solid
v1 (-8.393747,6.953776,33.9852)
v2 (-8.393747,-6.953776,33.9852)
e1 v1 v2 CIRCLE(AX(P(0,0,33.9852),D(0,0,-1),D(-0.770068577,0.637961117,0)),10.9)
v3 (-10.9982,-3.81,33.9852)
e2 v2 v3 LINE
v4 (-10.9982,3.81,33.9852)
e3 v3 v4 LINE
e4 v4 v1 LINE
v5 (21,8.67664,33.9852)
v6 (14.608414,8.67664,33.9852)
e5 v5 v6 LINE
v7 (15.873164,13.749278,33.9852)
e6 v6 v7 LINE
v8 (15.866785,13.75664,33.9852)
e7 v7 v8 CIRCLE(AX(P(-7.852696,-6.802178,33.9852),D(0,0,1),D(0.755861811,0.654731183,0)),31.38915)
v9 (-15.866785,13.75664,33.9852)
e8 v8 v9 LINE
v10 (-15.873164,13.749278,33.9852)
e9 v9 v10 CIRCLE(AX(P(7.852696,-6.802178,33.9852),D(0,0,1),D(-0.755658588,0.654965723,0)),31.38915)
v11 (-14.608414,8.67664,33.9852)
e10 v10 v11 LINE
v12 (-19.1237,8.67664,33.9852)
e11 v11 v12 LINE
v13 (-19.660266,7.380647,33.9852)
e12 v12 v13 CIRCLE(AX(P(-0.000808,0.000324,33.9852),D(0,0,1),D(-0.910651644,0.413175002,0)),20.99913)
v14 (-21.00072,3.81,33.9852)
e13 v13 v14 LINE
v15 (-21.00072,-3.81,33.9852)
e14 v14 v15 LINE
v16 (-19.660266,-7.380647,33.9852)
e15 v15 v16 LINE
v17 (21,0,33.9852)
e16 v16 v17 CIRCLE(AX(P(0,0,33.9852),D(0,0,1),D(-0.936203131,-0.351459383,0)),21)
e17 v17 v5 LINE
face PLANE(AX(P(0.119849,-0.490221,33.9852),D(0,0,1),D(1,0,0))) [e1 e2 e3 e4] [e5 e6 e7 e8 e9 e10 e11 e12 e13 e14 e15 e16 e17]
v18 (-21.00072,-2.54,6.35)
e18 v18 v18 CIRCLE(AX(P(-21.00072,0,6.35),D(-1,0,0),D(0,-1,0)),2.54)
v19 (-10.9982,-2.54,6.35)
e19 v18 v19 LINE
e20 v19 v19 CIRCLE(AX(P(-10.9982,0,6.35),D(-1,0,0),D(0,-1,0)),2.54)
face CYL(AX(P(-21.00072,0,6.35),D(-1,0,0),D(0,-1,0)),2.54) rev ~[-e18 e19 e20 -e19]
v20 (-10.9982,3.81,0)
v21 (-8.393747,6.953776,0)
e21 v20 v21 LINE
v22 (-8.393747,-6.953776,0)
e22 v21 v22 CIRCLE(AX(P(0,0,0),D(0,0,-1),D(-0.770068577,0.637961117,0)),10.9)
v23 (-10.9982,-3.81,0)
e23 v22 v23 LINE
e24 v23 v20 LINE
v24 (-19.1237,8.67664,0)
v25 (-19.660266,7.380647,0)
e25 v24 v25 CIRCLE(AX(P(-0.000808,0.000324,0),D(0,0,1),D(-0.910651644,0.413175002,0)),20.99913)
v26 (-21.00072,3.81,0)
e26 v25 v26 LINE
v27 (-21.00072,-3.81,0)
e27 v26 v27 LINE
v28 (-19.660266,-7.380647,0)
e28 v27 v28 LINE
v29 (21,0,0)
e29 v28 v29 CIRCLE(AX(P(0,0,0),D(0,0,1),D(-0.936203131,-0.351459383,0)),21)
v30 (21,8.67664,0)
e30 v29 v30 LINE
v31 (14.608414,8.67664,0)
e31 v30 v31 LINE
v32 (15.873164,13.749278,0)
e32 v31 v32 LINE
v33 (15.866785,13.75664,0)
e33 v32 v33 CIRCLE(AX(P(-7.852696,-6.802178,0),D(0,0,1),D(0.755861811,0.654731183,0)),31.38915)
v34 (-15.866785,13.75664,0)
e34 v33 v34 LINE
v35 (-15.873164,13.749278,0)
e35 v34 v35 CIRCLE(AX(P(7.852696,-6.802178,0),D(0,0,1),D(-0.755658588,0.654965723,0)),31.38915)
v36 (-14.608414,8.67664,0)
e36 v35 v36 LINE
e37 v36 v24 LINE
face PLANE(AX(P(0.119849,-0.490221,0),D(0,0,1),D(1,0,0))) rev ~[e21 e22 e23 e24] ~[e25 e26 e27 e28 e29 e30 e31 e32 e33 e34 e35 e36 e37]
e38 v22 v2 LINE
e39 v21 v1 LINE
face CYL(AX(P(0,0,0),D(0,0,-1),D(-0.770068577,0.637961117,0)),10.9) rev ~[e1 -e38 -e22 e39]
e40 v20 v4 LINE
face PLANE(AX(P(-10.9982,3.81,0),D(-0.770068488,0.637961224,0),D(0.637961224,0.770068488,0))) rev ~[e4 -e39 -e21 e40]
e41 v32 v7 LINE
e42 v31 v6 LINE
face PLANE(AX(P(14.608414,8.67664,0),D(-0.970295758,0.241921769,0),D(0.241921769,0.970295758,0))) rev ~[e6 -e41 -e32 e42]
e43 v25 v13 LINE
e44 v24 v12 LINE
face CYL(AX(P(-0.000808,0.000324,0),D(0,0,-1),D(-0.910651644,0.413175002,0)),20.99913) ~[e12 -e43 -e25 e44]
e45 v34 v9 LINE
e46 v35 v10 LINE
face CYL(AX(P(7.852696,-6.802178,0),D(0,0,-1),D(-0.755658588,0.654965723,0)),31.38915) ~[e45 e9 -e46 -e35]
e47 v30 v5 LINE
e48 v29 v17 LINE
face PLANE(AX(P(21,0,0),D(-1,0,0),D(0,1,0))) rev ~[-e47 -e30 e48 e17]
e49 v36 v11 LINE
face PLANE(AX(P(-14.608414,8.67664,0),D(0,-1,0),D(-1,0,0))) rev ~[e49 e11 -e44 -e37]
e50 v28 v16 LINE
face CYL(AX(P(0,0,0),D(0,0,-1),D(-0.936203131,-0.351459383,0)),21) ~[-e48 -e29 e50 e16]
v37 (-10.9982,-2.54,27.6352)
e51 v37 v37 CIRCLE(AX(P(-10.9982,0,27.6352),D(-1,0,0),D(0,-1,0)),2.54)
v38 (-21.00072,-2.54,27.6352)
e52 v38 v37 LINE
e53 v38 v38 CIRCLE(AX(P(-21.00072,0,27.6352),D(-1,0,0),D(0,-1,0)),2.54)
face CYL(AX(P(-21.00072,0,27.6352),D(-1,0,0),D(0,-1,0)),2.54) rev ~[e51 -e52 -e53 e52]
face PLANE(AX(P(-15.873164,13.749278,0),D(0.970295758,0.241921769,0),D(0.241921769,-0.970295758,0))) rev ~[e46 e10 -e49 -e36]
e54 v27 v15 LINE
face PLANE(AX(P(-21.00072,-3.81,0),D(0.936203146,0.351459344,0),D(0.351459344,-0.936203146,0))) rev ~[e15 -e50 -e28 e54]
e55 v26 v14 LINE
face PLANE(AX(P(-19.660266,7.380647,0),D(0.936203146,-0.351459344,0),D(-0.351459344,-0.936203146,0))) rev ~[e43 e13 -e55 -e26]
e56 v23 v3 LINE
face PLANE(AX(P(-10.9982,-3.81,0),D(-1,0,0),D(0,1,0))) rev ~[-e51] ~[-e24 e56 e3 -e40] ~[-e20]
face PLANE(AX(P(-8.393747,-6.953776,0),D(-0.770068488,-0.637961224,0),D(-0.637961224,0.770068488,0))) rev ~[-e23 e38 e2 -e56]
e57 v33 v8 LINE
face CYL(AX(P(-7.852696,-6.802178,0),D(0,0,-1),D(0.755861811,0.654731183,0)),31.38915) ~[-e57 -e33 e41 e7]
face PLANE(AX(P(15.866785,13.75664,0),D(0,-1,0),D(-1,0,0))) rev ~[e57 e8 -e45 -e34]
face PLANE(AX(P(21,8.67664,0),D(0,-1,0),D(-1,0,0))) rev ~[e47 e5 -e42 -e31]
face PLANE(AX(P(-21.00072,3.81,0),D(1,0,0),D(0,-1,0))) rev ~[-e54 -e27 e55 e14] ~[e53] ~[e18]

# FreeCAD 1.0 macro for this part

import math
import FreeCAD as App
import Part
import Sketcher
Q = App.Units.Quantity

doc = App.newDocument("Part")
params = doc.addObject("Spreadsheet::Sheet", "Params")
for row, (alias, value) in enumerate([
    ("sketch1_height", "0.3 in"),
    ("sketch1_height2", "0.3 in"),
    ("pad1_length", "1.338 in"),
    ("sketch2_diameter", "0.2 in"),
    ("pocket1_length", "0.3938 in"),
], start=1):
    params.set(f"A{row}", alias)
    params.set(f"B{row}", "=" + value)
    params.setAlias(f"B{row}", alias)

body = doc.addObject("PartDesign::Body", "Body")

sketch1 = doc.addObject("Sketcher::SketchObject", "Sketch")
body.addObject(sketch1)
sketch1.AttachmentSupport = (doc.XY_Plane, [""])
sketch1.MapMode = "FlatFace"
sketch1.addGeometry([
    Part.LineSegment(App.Vector(-21.00072, -3.81, 0), App.Vector(-19.660266, -7.380647, 0)),
    Part.ArcOfCircle(Part.Circle(App.Vector(0, 0, 0), App.Vector(0, 0, 1), 21), math.radians(-159.423396), math.radians(0)),
    Part.LineSegment(App.Vector(21, 0, 0), App.Vector(21, 8.67664, 0)),
    Part.LineSegment(App.Vector(21, 8.67664, 0), App.Vector(14.608414, 8.67664, 0)),
    Part.LineSegment(App.Vector(14.608414, 8.67664, 0), App.Vector(15.873164, 13.749278, 0)),
    Part.ArcOfCircle(Part.Circle(App.Vector(-7.852696, -6.802178, 0), App.Vector(0, 0, 1), 31.38915), math.radians(40.89927), math.radians(40.917051)),
    Part.LineSegment(App.Vector(15.866785, 13.75664, 0), App.Vector(-15.866785, 13.75664, 0)),
    Part.ArcOfCircle(Part.Circle(App.Vector(7.852696, -6.802178, 0), App.Vector(0, 0, 1), 31.38915), math.radians(139.082949), math.radians(139.10073)),
    Part.LineSegment(App.Vector(-15.873164, 13.749278, 0), App.Vector(-14.608414, 8.67664, 0)),
    Part.LineSegment(App.Vector(-14.608414, 8.67664, 0), App.Vector(-19.1237, 8.67664, 0)),
    Part.ArcOfCircle(Part.Circle(App.Vector(-0.000808, 0.000324, 0), App.Vector(0, 0, 1), 20.99913), math.radians(155.59556), math.radians(159.423451)),
    Part.LineSegment(App.Vector(-19.660266, 7.380647, 0), App.Vector(-21.00072, 3.81, 0)),
    Part.LineSegment(App.Vector(-21.00072, 3.81, 0), App.Vector(-21.00072, -3.81, 0)),
    Part.LineSegment(App.Vector(-10.9982, 3.81, 0), App.Vector(-8.393747, 6.953776, 0)),
    Part.ArcOfCircle(Part.Circle(App.Vector(0, 0, 0), App.Vector(0, 0, 1), 10.9), math.radians(-140.360047), math.radians(140.360047)),
    Part.LineSegment(App.Vector(-8.393747, -6.953776, 0), App.Vector(-10.9982, -3.81, 0)),
    Part.LineSegment(App.Vector(-10.9982, -3.81, 0), App.Vector(-10.9982, 3.81, 0)),
], False)
sketch1.addConstraint([
    Sketcher.Constraint("Coincident", 0, 2, 1, 1),
    Sketcher.Constraint("Coincident", 1, 2, 2, 1),
    Sketcher.Constraint("Coincident", 2, 2, 3, 1),
    Sketcher.Constraint("Coincident", 3, 2, 4, 1),
    Sketcher.Constraint("Coincident", 4, 2, 5, 1),
    Sketcher.Constraint("Coincident", 5, 2, 6, 1),
    Sketcher.Constraint("Coincident", 6, 2, 7, 1),
    Sketcher.Constraint("Coincident", 7, 2, 8, 1),
    Sketcher.Constraint("Coincident", 8, 2, 9, 1),
    Sketcher.Constraint("Coincident", 9, 2, 10, 1),
    Sketcher.Constraint("Coincident", 10, 2, 11, 1),
    Sketcher.Constraint("Coincident", 11, 2, 12, 1),
    Sketcher.Constraint("Coincident", 12, 2, 0, 1),
    Sketcher.Constraint("Coincident", 13, 2, 14, 2),
    Sketcher.Constraint("Coincident", 14, 1, 15, 1),
    Sketcher.Constraint("Coincident", 15, 2, 16, 1),
    Sketcher.Constraint("Coincident", 16, 2, 13, 1),
    Sketcher.Constraint("Vertical", 2),
    Sketcher.Constraint("Horizontal", 3),
    Sketcher.Constraint("Horizontal", 6),
    Sketcher.Constraint("Horizontal", 9),
    Sketcher.Constraint("Vertical", 12),
    Sketcher.Constraint("Vertical", 16),
    Sketcher.Constraint("Coincident", 1, 3, -1, 1),
    Sketcher.Constraint("Coincident", 14, 3, -1, 1),
    Sketcher.Constraint("PointOnObject", 1, 2, -1),
    Sketcher.Constraint("DistanceY", 12, 2, 12, 1, Q("0.3 in")),
    Sketcher.Constraint("DistanceY", 16, 1, 16, 2, Q("0.3 in")),
    Sketcher.Constraint("DistanceY", 3, 2, 5, 2, Q("0.2 in")),
    Sketcher.Constraint("DistanceY", 8, 2, 6, 2, Q("0.2 in")),
    Sketcher.Constraint("DistanceY", -1, 1, 11, 2, Q("0.15 in")),
    Sketcher.Constraint("DistanceY", 15, 2, -1, 1, Q("0.15 in")),
    Sketcher.Constraint("Radius", 1, 21.0),
    Sketcher.Constraint("Radius", 14, 10.9),
    Sketcher.Constraint("DistanceY", 2, 1, 2, 2, Q("0.3416 in")),
    Sketcher.Constraint("DistanceX", 15, 2, -1, 1, Q("0.433 in")),
    Sketcher.Constraint("Radius", 5, 31.38915),
    Sketcher.Constraint("Radius", 7, 31.38915),
    Sketcher.Constraint("Radius", 10, 20.99913),
    Sketcher.Constraint("DistanceX", 11, 2, -1, 1, Q("0.8268 in")),
    Sketcher.Constraint("DistanceX", 6, 2, 6, 1, 31.73357),
    Sketcher.Constraint("DistanceX", 9, 2, -1, 1, 19.1237),
    Sketcher.Constraint("DistanceY", 5, 3, 10, 3, 6.802502),
    Sketcher.Constraint("DistanceY", 7, 3, 10, 3, 6.802502),
    Sketcher.Constraint("DistanceX", 10, 2, 7, 2, 3.787102),
    Sketcher.Constraint("DistanceY", 13, 2, 7, 2, 6.795502),
    Sketcher.Constraint("DistanceY", 14, 1, 5, 3, 0.151598),
    Sketcher.Constraint("Distance", 4, 5.22793),
    Sketcher.Constraint("Distance", 8, 5.22793),
    Sketcher.Constraint("DistanceX", 3, 2, 3, 1, 6.391586),
    Sketcher.Constraint("DistanceX", 9, 2, 9, 1, 4.515286),
    Sketcher.Constraint("DistanceX", 5, 3, 10, 3, 7.851888),
    Sketcher.Constraint("DistanceX", 0, 2, 5, 3, 11.80757),
    Sketcher.Constraint("DistanceY", 0, 2, 5, 3, 0.578469),
])
sketch1.setExpression("Constraints[26]", "Params.sketch1_height")
sketch1.setExpression("Constraints[27]", "Params.sketch1_height2")
pad1 = doc.addObject("PartDesign::Pad", "Pad")
body.addObject(pad1)
pad1.Profile = sketch1
pad1.setExpression("Length", "Params.pad1_length")

sketch2 = doc.addObject("Sketcher::SketchObject", "Sketch001")
body.addObject(sketch2)
sketch2.AttachmentSupport = (doc.YZ_Plane, [""])
sketch2.MapMode = "FlatFace"
sketch2.AttachmentOffset = App.Placement(App.Vector(0, 0, -0.8268 * 25.4), App.Rotation())
sketch2.addGeometry([
    Part.Circle(App.Vector(0, 6.3, 0), App.Vector(0, 0, 1), 2.5),
    Part.Circle(App.Vector(0, 27.6, 0), App.Vector(0, 0, 1), 2.5),
], False)
sketch2.addConstraint([
    Sketcher.Constraint("Equal", 0, 1),
    Sketcher.Constraint("PointOnObject", 0, 3, -2),
    Sketcher.Constraint("PointOnObject", 1, 3, -2),
    Sketcher.Constraint("Diameter", 0, Q("0.2 in")),
    Sketcher.Constraint("DistanceY", -1, 1, 0, 3, Q("0.25 in")),
    Sketcher.Constraint("DistanceY", -1, 1, 1, 3, Q("1.088 in")),
])
sketch2.setExpression("Constraints[3]", "Params.sketch2_diameter")
pocket1 = doc.addObject("PartDesign::Pocket", "Pocket")
body.addObject(pocket1)
pocket1.Profile = sketch2
pocket1.setExpression("Length", "Params.pocket1_length")
pocket1.Reversed = True

doc.recompute()
